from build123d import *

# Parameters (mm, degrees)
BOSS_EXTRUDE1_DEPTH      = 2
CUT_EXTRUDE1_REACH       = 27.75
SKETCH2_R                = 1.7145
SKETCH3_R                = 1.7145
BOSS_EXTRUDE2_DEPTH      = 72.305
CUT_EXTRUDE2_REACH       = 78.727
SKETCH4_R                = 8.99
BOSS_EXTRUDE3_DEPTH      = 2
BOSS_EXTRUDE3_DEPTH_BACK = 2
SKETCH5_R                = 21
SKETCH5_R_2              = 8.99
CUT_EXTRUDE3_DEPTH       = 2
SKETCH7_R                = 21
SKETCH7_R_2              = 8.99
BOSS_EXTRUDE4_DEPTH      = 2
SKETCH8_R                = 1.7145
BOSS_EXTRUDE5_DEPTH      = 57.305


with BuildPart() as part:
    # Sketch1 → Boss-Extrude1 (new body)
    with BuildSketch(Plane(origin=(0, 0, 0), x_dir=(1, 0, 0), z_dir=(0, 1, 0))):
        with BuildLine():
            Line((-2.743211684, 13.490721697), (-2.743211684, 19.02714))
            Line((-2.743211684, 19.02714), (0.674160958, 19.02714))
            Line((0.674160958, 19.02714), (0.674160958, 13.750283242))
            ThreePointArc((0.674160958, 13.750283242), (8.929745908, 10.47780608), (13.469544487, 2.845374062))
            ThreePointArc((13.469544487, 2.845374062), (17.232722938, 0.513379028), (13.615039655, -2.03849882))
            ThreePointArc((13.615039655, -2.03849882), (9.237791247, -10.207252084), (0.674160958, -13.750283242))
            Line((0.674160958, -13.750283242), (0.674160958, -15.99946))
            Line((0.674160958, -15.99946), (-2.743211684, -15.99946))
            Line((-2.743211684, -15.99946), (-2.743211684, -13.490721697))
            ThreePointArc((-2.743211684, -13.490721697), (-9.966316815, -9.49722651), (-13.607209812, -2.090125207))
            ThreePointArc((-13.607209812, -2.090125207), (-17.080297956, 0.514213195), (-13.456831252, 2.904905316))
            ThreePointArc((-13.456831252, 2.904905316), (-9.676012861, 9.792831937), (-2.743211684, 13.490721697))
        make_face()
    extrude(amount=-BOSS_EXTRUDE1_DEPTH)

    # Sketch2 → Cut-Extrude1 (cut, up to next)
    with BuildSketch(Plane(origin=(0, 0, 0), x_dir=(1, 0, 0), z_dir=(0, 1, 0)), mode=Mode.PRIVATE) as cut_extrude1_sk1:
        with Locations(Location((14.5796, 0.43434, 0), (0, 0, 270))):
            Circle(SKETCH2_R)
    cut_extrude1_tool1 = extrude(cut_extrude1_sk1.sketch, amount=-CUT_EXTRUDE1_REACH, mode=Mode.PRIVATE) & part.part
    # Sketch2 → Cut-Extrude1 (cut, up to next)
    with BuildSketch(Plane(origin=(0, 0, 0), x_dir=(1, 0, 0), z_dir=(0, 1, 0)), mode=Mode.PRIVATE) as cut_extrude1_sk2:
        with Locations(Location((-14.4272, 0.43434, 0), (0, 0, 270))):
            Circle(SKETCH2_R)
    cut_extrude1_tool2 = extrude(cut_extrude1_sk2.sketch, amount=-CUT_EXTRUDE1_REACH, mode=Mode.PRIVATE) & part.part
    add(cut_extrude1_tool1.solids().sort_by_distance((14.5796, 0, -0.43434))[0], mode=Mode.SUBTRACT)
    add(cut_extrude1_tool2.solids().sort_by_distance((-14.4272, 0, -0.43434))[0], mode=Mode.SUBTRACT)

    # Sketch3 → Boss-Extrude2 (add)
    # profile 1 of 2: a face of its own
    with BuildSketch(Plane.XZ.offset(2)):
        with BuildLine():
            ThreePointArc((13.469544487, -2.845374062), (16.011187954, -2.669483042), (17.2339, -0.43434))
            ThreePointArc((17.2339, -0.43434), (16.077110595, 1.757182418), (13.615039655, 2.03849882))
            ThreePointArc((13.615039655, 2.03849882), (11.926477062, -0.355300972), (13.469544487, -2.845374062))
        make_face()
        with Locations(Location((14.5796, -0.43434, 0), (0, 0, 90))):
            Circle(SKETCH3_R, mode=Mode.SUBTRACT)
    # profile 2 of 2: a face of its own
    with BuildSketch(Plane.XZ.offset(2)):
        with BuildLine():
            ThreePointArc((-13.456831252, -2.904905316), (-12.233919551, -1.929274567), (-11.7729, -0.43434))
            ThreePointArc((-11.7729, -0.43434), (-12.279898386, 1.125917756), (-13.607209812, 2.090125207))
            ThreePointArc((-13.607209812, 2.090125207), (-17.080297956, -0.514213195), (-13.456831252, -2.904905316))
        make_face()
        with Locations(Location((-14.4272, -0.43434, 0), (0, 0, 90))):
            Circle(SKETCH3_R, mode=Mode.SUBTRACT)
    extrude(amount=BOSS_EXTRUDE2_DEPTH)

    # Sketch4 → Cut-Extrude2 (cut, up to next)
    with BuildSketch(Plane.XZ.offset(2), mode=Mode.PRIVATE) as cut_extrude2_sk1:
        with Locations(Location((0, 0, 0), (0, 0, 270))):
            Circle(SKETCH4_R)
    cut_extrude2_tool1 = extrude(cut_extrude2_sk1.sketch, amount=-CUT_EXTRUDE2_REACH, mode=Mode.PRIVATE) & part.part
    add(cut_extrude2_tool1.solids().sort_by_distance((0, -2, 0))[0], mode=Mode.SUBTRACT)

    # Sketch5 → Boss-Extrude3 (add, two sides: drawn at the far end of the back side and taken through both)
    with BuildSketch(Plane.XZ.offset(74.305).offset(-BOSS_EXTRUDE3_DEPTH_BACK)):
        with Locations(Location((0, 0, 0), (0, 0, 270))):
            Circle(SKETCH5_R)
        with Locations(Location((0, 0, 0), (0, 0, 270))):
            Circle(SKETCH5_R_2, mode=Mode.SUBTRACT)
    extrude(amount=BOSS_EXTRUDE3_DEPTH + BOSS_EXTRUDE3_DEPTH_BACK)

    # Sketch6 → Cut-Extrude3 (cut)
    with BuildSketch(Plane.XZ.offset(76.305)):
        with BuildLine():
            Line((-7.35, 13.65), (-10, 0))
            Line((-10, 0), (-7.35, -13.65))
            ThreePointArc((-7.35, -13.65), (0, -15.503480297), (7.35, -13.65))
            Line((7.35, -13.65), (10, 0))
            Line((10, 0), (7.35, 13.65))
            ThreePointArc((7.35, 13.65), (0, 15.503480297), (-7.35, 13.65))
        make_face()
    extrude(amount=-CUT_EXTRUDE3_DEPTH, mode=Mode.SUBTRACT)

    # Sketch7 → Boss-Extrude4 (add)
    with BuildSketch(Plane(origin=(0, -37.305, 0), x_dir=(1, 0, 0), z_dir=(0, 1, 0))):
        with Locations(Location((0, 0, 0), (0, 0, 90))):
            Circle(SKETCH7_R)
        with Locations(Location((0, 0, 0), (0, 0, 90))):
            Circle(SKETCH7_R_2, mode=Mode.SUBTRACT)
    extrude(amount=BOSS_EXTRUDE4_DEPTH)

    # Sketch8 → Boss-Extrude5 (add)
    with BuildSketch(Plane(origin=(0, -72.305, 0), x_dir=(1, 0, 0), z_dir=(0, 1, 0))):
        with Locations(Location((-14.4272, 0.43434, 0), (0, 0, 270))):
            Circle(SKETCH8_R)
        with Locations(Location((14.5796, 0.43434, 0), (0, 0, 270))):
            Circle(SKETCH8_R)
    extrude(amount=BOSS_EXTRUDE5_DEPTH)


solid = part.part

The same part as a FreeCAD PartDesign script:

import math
import FreeCAD as App
import Part
import Sketcher
from FreeCAD import Vector
Q = App.Units.Quantity

doc = App.newDocument("Part")
body = doc.addObject("PartDesign::Body", "Body")

# Sketch on XZ plane
sketch1 = doc.addObject("Sketcher::SketchObject", "Sketch")
body.addObject(sketch1)
sketch1.AttachmentSupport = (doc.XZ_Plane, [""])
sketch1.MapMode = "FlatFace"
sketch1.addGeometry([
    Part.LineSegment(Vector(-2.7, -19, 0), Vector(-2.7, -13.5, 0)),  # 0
    Part.ArcOfCircle(Part.Circle(Vector(0, 0, 0), Vector(0, 0, 1), 13.8), math.radians(-168), math.radians(-101)),  # 1
    Part.ArcOfCircle(Part.Circle(Vector(-14.4, -0.4, 0), Vector(0, 0, 1), 2.7), math.radians(72), math.radians(291)),  # 2
    Part.ArcOfCircle(Part.Circle(Vector(0, 0, 0), Vector(0, 0, 1), 13.8), math.radians(101), math.radians(171)),  # 3
    Part.LineSegment(Vector(-2.7, 13.5, 0), Vector(-2.7, 16, 0)),  # 4
    Part.LineSegment(Vector(-2.7, 16, 0), Vector(0.7, 16, 0)),  # 5
    Part.LineSegment(Vector(0.7, 16, 0), Vector(0.7, 13.8, 0)),  # 6
    Part.ArcOfCircle(Part.Circle(Vector(0, 0, 0), Vector(0, 0, 1), 13.8), math.radians(9), math.radians(87)),  # 7
    Part.ArcOfCircle(Part.Circle(Vector(14.6, -0.4, 0), Vector(0, 0, 1), 2.7), math.radians(-115), math.radians(111)),  # 8
    Part.ArcOfCircle(Part.Circle(Vector(0, 0, 0), Vector(0, 0, 1), 13.8), math.radians(-87), math.radians(-12)),  # 9
    Part.LineSegment(Vector(0.7, -13.8, 0), Vector(0.7, -19, 0)),  # 10
    Part.LineSegment(Vector(0.7, -19, 0), Vector(-2.7, -19, 0)),  # 11
], False)
sketch1.addConstraint([
    Sketcher.Constraint("Coincident", 0, 2, 1, 2),
    Sketcher.Constraint("Coincident", 1, 1, 2, 2),
    Sketcher.Constraint("Coincident", 2, 1, 3, 2),
    Sketcher.Constraint("Coincident", 3, 1, 4, 1),
    Sketcher.Constraint("Coincident", 4, 2, 5, 1),
    Sketcher.Constraint("Coincident", 5, 2, 6, 1),
    Sketcher.Constraint("Coincident", 6, 2, 7, 2),
    Sketcher.Constraint("Coincident", 7, 1, 8, 2),
    Sketcher.Constraint("Coincident", 8, 1, 9, 2),
    Sketcher.Constraint("Coincident", 9, 1, 10, 1),
    Sketcher.Constraint("Coincident", 10, 2, 11, 1),
    Sketcher.Constraint("Coincident", 11, 2, 0, 1),
    Sketcher.Constraint("Vertical", 0),
    Sketcher.Constraint("Vertical", 4),
    Sketcher.Constraint("Horizontal", 5),
    Sketcher.Constraint("Vertical", 6),
    Sketcher.Constraint("Vertical", 10),
    Sketcher.Constraint("Horizontal", 11),
    Sketcher.Constraint("Coincident", 1, 3, -1, 1),
    Sketcher.Constraint("Coincident", 3, 3, -1, 1),
    Sketcher.Constraint("Coincident", 7, 3, -1, 1),
    Sketcher.Constraint("Coincident", 9, 3, -1, 1),
    Sketcher.Constraint("Equal", 1, 3),
    Sketcher.Constraint("Equal", 3, 7),
    Sketcher.Constraint("Equal", 2, 8),
    Sketcher.Constraint("Equal", 7, 9),
    Sketcher.Constraint("Horizontal", 2, 3, 8, 3),
    Sketcher.Constraint("Vertical", 0, 2, 3, 1),
    Sketcher.Constraint("Vertical", 6, 2, 9, 1),
    Sketcher.Constraint("Radius", 1, Q("13.7668 mm")),
    Sketcher.Constraint("Radius", 2, Q("2.6543 mm")),
    Sketcher.Constraint("DistanceX", 2, 1, 3, 1, Q("10.863998 mm")),
    Sketcher.Constraint("DistanceY", 0, 1, 0, 2, Q("5.536418 mm")),
    Sketcher.Constraint("DistanceY", 4, 1, 4, 2, Q("2.508738 mm")),
    Sketcher.Constraint("DistanceX", 2, 3, -1, 1, Q("14.4272 mm")),
    Sketcher.Constraint("DistanceX", -1, 1, 8, 3, Q("14.5796 mm")),
    Sketcher.Constraint("DistanceY", -1, 1, 7, 1, Q("2.038499 mm")),
    Sketcher.Constraint("DistanceX", 5, 1, 5, 2, Q("3.417373 mm")),
])
pad1 = doc.addObject("PartDesign::Pad", "Pad")
body.addObject(pad1)
pad1.Profile = sketch1
pad1.Length = 2

# Sketch on XZ plane
sketch2 = doc.addObject("Sketcher::SketchObject", "Sketch001")
body.addObject(sketch2)
sketch2.AttachmentSupport = (doc.XZ_Plane, [""])
sketch2.MapMode = "FlatFace"
sketch2.addGeometry(Part.Circle(Vector(14.6, -0.4, 0), Vector(0, 0, 1), 1.7), False)
sketch2.addConstraint([
    Sketcher.Constraint("Diameter", 0, Q("3.429 mm")),
    Sketcher.Constraint("DistanceX", -1, 1, 0, 3, Q("14.5796 mm")),
    Sketcher.Constraint("DistanceY", 0, 3, -1, 1, Q("0.43434 mm")),
])
pocket1 = doc.addObject("PartDesign::Pocket", "Pocket")
body.addObject(pocket1)
pocket1.Profile = sketch2
pocket1.Type = "UpToFirst"
pocket1.Reversed = True

# Sketch on XZ plane
sketch3 = doc.addObject("Sketcher::SketchObject", "Sketch002")
body.addObject(sketch3)
sketch3.AttachmentSupport = (doc.XZ_Plane, [""])
sketch3.MapMode = "FlatFace"
sketch3.addGeometry(Part.Circle(Vector(-14.4, -0.4, 0), Vector(0, 0, 1), 1.7), False)
sketch3.addConstraint([
    Sketcher.Constraint("Diameter", 0, Q("3.429 mm")),
    Sketcher.Constraint("DistanceX", 0, 3, -1, 1, Q("14.4272 mm")),
    Sketcher.Constraint("DistanceY", 0, 3, -1, 1, Q("0.43434 mm")),
])
pocket2 = doc.addObject("PartDesign::Pocket", "Pocket001")
body.addObject(pocket2)
pocket2.Profile = sketch3
pocket2.Type = "UpToFirst"
pocket2.Reversed = True

# Sketch on XZ plane
sketch4 = doc.addObject("Sketcher::SketchObject", "Sketch003")
body.addObject(sketch4)
sketch4.AttachmentSupport = (doc.XZ_Plane, [""])
sketch4.MapMode = "FlatFace"
sketch4.AttachmentOffset = App.Placement(Vector(0, 0, 2), App.Rotation())
sketch4.addGeometry([
    Part.ArcOfCircle(Part.Circle(Vector(14.6, -0.4, 0), Vector(0, 0, 1), 2.7), math.radians(-115), math.radians(0)),  # 0
    Part.ArcOfCircle(Part.Circle(Vector(14.6, -0.4, 0), Vector(0, 0, 1), 2.7), math.radians(0), math.radians(111)),  # 1
    Part.ArcOfCircle(Part.Circle(Vector(14.6, -0.4, 0), Vector(0, 0, 1), 2.7), math.radians(111), math.radians(245)),  # 2
    Part.Circle(Vector(14.6, -0.4, 0), Vector(0, 0, 1), 1.7),  # 3
    Part.ArcOfCircle(Part.Circle(Vector(-14.4, -0.4, 0), Vector(0, 0, 1), 2.7), math.radians(-69), math.radians(0)),  # 4
    Part.ArcOfCircle(Part.Circle(Vector(-14.4, -0.4, 0), Vector(0, 0, 1), 2.7), math.radians(0), math.radians(72)),  # 5
    Part.ArcOfCircle(Part.Circle(Vector(-14.4, -0.4, 0), Vector(0, 0, 1), 2.7), math.radians(72), math.radians(291)),  # 6
    Part.Circle(Vector(-14.4, -0.4, 0), Vector(0, 0, 1), 1.7),  # 7
], False)
sketch4.addConstraint([
    Sketcher.Constraint("Tangent", 0, 2, 1, 1),
    Sketcher.Constraint("Tangent", 1, 2, 2, 1),
    Sketcher.Constraint("Tangent", 2, 2, 0, 1),
    Sketcher.Constraint("Tangent", 4, 2, 5, 1),
    Sketcher.Constraint("Tangent", 5, 2, 6, 1),
    Sketcher.Constraint("Tangent", 6, 2, 4, 1),
    Sketcher.Constraint("Coincident", 3, 3, 0, 3),
    Sketcher.Constraint("Coincident", 7, 3, 4, 3),
    Sketcher.Constraint("Equal", 2, 4),
    Sketcher.Constraint("Equal", 3, 7),
    Sketcher.Constraint("Horizontal", 3, 3, 4, 3),
    Sketcher.Constraint("Horizontal", 7, 3, 0, 2),
    Sketcher.Constraint("Horizontal", 0, 2, 4, 2),
    Sketcher.Constraint("Diameter", 3, Q("3.429 mm")),
    Sketcher.Constraint("Radius", 0, Q("2.6543 mm")),
    Sketcher.Constraint("DistanceX", -1, 1, 0, 3, Q("14.5796 mm")),
    Sketcher.Constraint("DistanceX", 4, 3, -1, 1, Q("14.4272 mm")),
    Sketcher.Constraint("DistanceY", -1, 1, 1, 2, Q("2.038499 mm")),
    Sketcher.Constraint("DistanceY", 0, 3, -1, 1, Q("0.43434 mm")),
    Sketcher.Constraint("DistanceX", 5, 2, -1, 1, Q("13.60721 mm")),
    Sketcher.Constraint("DistanceX", 6, 2, -1, 1, Q("13.456831 mm")),
    Sketcher.Constraint("DistanceX", -1, 1, 2, 2, Q("13.469544 mm")),
])
pad2 = doc.addObject("PartDesign::Pad", "Pad001")
body.addObject(pad2)
pad2.Profile = sketch4
pad2.Length = 72.305

# Sketch on XZ plane
sketch5 = doc.addObject("Sketcher::SketchObject", "Sketch004")
body.addObject(sketch5)
sketch5.AttachmentSupport = (doc.XZ_Plane, [""])
sketch5.MapMode = "FlatFace"
sketch5.AttachmentOffset = App.Placement(Vector(0, 0, 2), App.Rotation())
sketch5.addGeometry(Part.Circle(Vector(0, 0, 0), Vector(0, 0, 1), 9), False)
sketch5.addConstraint([
    Sketcher.Constraint("Coincident", 0, 3, -1, 1),
    Sketcher.Constraint("Diameter", 0, Q("17.98 mm")),
])
pocket3 = doc.addObject("PartDesign::Pocket", "Pocket002")
body.addObject(pocket3)
pocket3.Profile = sketch5
pocket3.Type = "UpToFirst"

# Sketch on XZ plane
sketch6 = doc.addObject("Sketcher::SketchObject", "Sketch005")
body.addObject(sketch6)
sketch6.AttachmentSupport = (doc.XZ_Plane, [""])
sketch6.MapMode = "FlatFace"
sketch6.AttachmentOffset = App.Placement(Vector(0, 0, 74.305), App.Rotation())
sketch6.addGeometry([
    Part.Circle(Vector(0, 0, 0), Vector(0, 0, 1), 21),
    Part.Circle(Vector(0, 0, 0), Vector(0, 0, 1), 9),
], False)
sketch6.addConstraint([
    Sketcher.Constraint("Coincident", 0, 3, -1, 1),
    Sketcher.Constraint("Coincident", 1, 3, -1, 1),
    Sketcher.Constraint("Diameter", 0, Q("42 mm")),
    Sketcher.Constraint("Diameter", 1, Q("17.98 mm")),
])
pad3 = doc.addObject("PartDesign::Pad", "Pad002")
body.addObject(pad3)
pad3.Profile = sketch6
pad3.Type = "TwoLengths"
pad3.Length = 2
pad3.Length2 = 2

# Sketch on XZ plane
sketch7 = doc.addObject("Sketcher::SketchObject", "Sketch006")
body.addObject(sketch7)
sketch7.AttachmentSupport = (doc.XZ_Plane, [""])
sketch7.MapMode = "FlatFace"
sketch7.AttachmentOffset = App.Placement(Vector(0, 0, 76.305), App.Rotation())
sketch7.addGeometry([
    Part.LineSegment(Vector(-7.35, 13.65, 0), Vector(-10, 0, 0)),  # 0
    Part.LineSegment(Vector(-10, 0, 0), Vector(-7.35, -13.65, 0)),  # 1
    Part.ArcOfCircle(Part.Circle(Vector(0, -0.00348, 0), Vector(0, 0, 1), 15.5), math.radians(-118.306855), math.radians(-61.693145)),  # 2
    Part.LineSegment(Vector(7.35, -13.65, 0), Vector(10, 0, 0)),  # 3
    Part.LineSegment(Vector(10, 0, 0), Vector(7.35, 13.65, 0)),  # 4
    Part.ArcOfCircle(Part.Circle(Vector(0, 0.00348, 0), Vector(0, 0, 1), 15.5), math.radians(61.693145), math.radians(118.306855)),  # 5
], False)
sketch7.addConstraint([
    Sketcher.Constraint("Coincident", 0, 2, 1, 1),
    Sketcher.Constraint("Coincident", 1, 2, 2, 1),
    Sketcher.Constraint("Coincident", 2, 2, 3, 1),
    Sketcher.Constraint("Coincident", 3, 2, 4, 1),
    Sketcher.Constraint("Coincident", 4, 2, 5, 1),
    Sketcher.Constraint("Coincident", 5, 2, 0, 1),
    Sketcher.Constraint("Equal", 2, 5),
    Sketcher.Constraint("Symmetric", 2, 3, 5, 3, -1, 1),
    Sketcher.Constraint("Symmetric", 0, 2, 3, 2, -1, 1),
    Sketcher.Constraint("Symmetric", 1, 2, 2, 2, -2),
    Sketcher.Constraint("PointOnObject", 0, 2, -1),
    Sketcher.Constraint("Parallel", 0, 3),
    Sketcher.Constraint("Parallel", 1, 4),
    Sketcher.Constraint("Radius", 2, Q("15.5 mm")),
    Sketcher.Constraint("DistanceX", 0, 2, -1, 1, Q("10 mm")),
    Sketcher.Constraint("DistanceX", 1, 2, 2, 2, Q("14.7 mm")),
    Sketcher.Constraint("DistanceY", 2, 2, 4, 2, Q("27.3 mm")),
])
pocket4 = doc.addObject("PartDesign::Pocket", "Pocket003")
body.addObject(pocket4)
pocket4.Profile = sketch7
pocket4.Length = 2

# Sketch on XZ plane
sketch8 = doc.addObject("Sketcher::SketchObject", "Sketch007")
body.addObject(sketch8)
sketch8.AttachmentSupport = (doc.XZ_Plane, [""])
sketch8.MapMode = "FlatFace"
sketch8.AttachmentOffset = App.Placement(Vector(0, 0, 37.305), App.Rotation())
sketch8.addGeometry([
    Part.Circle(Vector(0, 0, 0), Vector(0, 0, 1), 21),
    Part.Circle(Vector(0, 0, 0), Vector(0, 0, 1), 9),
], False)
sketch8.addConstraint([
    Sketcher.Constraint("Coincident", 0, 3, -1, 1),
    Sketcher.Constraint("Coincident", 1, 3, -1, 1),
    Sketcher.Constraint("Diameter", 0, Q("42 mm")),
    Sketcher.Constraint("Diameter", 1, Q("17.98 mm")),
])
pad4 = doc.addObject("PartDesign::Pad", "Pad003")
body.addObject(pad4)
pad4.Profile = sketch8
pad4.Length = 2
pad4.Reversed = True

# Sketch on XZ plane
sketch9 = doc.addObject("Sketcher::SketchObject", "Sketch008")
body.addObject(sketch9)
sketch9.AttachmentSupport = (doc.XZ_Plane, [""])
sketch9.MapMode = "FlatFace"
sketch9.AttachmentOffset = App.Placement(Vector(0, 0, 72.305), App.Rotation())
sketch9.addGeometry([
    Part.Circle(Vector(-14.4, -0.4, 0), Vector(0, 0, 1), 1.7),
    Part.Circle(Vector(14.6, -0.4, 0), Vector(0, 0, 1), 1.7),
], False)
sketch9.addConstraint([
    Sketcher.Constraint("Equal", 0, 1),
    Sketcher.Constraint("Horizontal", 0, 3, 1, 3),
    Sketcher.Constraint("Diameter", 0, Q("3.429 mm")),
    Sketcher.Constraint("DistanceX", 0, 3, -1, 1, Q("14.4272 mm")),
    Sketcher.Constraint("DistanceX", -1, 1, 1, 3, Q("14.5796 mm")),
    Sketcher.Constraint("DistanceY", 0, 3, -1, 1, Q("0.43434 mm")),
])
pad5 = doc.addObject("PartDesign::Pad", "Pad004")
body.addObject(pad5)
pad5.Profile = sketch9
pad5.Length = 57.305
pad5.Reversed = True

doc.recompute()
